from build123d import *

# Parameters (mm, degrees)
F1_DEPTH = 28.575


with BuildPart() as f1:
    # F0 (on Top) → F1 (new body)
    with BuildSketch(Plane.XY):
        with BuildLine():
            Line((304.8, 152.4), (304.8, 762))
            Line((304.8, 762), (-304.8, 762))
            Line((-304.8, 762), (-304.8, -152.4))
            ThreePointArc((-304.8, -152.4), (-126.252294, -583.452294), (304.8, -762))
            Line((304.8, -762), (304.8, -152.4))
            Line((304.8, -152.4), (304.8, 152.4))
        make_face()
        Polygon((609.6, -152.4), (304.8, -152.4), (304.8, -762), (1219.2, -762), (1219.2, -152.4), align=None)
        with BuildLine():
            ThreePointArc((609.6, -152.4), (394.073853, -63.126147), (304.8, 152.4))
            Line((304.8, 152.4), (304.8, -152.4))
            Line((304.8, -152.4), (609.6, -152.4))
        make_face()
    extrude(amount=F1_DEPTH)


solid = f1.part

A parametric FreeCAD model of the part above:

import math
import FreeCAD as App
import Part
import Sketcher
from FreeCAD import Vector
Q = App.Units.Quantity

doc = App.newDocument("Part")
body = doc.addObject("PartDesign::Body", "Body")

sketch1 = body.newObject("Sketcher::SketchObject", "Sketch")
sketch1.AttachmentSupport = (doc.getObject("XY_Plane"), [""])
sketch1.MapMode = "FlatFace"
sketch1.addGeometry([
    Part.LineSegment(Vector(305, 762, 0), Vector(-305, 762, 0)),
    Part.LineSegment(Vector(-305, 762, 0), Vector(-305, -152, 0)),
    Part.ArcOfCircle(Part.Circle(Vector(305, -152, 0), Vector(0, 0, 1), 610), math.radians(180), math.radians(270)),
    Part.LineSegment(Vector(305, -762, 0), Vector(1219, -762, 0)),
    Part.LineSegment(Vector(1219, -762, 0), Vector(1219, -152, 0)),
    Part.LineSegment(Vector(1219, -152, 0), Vector(610, -152, 0)),
    Part.ArcOfCircle(Part.Circle(Vector(610, 152, 0), Vector(0, 0, 1), 305), math.radians(180), math.radians(270)),
    Part.LineSegment(Vector(305, 152, 0), Vector(305, 762, 0)),
], False)
sketch1.addConstraint([
    Sketcher.Constraint("Coincident", 0, 2, 1, 1),
    Sketcher.Constraint("Tangent", 1, 2, 2, 1),
    Sketcher.Constraint("Tangent", 2, 2, 3, 1),
    Sketcher.Constraint("Coincident", 3, 2, 4, 1),
    Sketcher.Constraint("Coincident", 4, 2, 5, 1),
    Sketcher.Constraint("Tangent", 5, 2, 6, 2),
    Sketcher.Constraint("Tangent", 6, 1, 7, 1),
    Sketcher.Constraint("Coincident", 7, 2, 0, 1),
    Sketcher.Constraint("Horizontal", 0),
    Sketcher.Constraint("Vertical", 1),
    Sketcher.Constraint("Horizontal", 3),
    Sketcher.Constraint("Vertical", 4),
    Sketcher.Constraint("Horizontal", 5),
    Sketcher.Constraint("Vertical", 7),
    Sketcher.Constraint("Symmetric", 1, 2, 6, 1, -1, 1),
    Sketcher.Constraint("Horizontal", 1, 2, 4, 2),
    Sketcher.Constraint("Equal", 0, 5),
    Sketcher.Constraint("Equal", 3, 1),
    Sketcher.Constraint("Equal", 5, 4),
    Sketcher.Constraint("Radius", 2, Q("24 in")),
    Sketcher.Constraint("Radius", 6, Q("12 in")),
])
pad1 = body.newObject("PartDesign::Pad", "Pad")
pad1.Profile = sketch1
pad1.Length = Q("1.125 in")

doc.recompute()
